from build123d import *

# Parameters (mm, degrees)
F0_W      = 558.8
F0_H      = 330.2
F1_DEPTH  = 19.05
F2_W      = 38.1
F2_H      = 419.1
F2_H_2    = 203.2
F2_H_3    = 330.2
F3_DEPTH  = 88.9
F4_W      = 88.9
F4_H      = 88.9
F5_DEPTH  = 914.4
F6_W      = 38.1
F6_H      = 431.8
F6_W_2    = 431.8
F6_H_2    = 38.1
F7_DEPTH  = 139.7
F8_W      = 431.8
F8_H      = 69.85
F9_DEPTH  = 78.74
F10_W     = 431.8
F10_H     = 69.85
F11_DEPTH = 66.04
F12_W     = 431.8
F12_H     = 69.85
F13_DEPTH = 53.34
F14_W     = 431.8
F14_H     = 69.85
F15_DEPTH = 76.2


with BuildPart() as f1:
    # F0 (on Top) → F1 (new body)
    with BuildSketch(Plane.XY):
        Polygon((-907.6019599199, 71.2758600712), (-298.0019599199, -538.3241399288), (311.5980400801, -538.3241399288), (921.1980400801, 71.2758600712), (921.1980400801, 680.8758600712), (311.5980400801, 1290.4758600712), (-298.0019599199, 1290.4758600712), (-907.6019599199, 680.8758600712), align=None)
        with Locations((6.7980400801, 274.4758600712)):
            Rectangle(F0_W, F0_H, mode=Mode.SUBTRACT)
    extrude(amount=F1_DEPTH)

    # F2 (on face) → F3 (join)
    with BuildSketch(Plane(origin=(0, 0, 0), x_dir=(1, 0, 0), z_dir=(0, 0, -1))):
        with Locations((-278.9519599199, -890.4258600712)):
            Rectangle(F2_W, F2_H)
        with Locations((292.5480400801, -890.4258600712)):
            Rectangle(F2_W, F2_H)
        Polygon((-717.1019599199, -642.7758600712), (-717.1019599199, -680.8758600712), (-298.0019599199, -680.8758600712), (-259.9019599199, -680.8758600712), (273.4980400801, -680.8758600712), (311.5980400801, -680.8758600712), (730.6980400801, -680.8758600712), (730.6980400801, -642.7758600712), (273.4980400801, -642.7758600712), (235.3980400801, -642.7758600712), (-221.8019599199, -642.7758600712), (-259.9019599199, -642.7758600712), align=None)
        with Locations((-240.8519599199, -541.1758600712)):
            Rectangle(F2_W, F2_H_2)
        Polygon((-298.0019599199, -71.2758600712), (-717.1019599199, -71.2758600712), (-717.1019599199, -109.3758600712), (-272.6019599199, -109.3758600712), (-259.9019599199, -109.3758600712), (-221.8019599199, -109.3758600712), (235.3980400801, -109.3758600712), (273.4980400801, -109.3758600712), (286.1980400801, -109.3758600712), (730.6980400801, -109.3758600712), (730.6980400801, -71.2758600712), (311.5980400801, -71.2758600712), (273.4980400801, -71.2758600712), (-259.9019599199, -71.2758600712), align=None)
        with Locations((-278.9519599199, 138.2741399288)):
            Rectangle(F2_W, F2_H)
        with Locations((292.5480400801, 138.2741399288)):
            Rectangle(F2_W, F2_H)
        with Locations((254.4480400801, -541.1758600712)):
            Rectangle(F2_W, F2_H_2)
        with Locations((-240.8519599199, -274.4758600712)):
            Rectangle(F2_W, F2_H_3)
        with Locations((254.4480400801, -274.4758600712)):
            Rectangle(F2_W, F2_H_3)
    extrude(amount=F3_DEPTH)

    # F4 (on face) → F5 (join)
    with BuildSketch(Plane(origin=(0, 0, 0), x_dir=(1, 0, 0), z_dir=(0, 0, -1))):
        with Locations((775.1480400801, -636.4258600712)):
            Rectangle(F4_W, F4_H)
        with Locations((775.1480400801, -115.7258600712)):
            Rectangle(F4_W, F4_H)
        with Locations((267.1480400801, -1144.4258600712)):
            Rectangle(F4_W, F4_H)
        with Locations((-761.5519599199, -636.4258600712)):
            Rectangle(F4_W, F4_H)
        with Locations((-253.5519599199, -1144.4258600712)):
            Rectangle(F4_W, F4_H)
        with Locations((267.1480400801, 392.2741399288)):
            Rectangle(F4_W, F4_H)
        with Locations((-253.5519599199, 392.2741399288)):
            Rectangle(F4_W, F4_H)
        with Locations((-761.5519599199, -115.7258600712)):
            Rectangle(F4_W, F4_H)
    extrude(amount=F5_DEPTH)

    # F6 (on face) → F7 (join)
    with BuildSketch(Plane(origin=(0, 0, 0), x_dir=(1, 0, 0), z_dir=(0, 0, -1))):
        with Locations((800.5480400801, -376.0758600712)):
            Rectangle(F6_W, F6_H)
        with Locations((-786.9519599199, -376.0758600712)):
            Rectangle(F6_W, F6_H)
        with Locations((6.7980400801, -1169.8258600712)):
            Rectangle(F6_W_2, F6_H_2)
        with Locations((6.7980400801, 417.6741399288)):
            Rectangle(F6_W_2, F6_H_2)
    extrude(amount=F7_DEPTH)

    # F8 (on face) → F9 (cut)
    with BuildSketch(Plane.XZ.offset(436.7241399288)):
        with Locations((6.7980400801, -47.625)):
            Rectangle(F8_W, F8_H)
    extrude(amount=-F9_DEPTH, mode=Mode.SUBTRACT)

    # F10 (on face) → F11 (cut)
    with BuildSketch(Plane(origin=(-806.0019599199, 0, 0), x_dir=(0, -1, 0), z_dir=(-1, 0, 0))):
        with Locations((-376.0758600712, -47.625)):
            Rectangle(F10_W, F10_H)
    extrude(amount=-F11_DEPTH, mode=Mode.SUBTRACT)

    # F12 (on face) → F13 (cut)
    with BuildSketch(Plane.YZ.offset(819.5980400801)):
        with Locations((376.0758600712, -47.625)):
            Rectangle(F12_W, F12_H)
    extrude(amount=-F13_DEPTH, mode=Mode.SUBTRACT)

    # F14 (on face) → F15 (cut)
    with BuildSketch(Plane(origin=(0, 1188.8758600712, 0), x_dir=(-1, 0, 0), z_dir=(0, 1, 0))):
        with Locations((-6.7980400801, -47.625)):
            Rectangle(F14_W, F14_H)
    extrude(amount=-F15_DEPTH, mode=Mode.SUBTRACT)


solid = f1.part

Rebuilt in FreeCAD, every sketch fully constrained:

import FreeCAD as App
import Part
import Sketcher

V = App.Vector
Q = App.Units.Quantity

doc = App.newDocument("Part")
body = doc.addObject("PartDesign::Body", "Body")

# Sketch on XY plane
sketch1 = body.newObject("Sketcher::SketchObject", "Sketch")
sketch1.AttachmentSupport = (doc.getObject("XY_Plane"), [""])
sketch1.MapMode = "FlatFace"
sketch1.addGeometry(Part.LineSegment(V(-908, 71, 0), V(-298, -538, 0)), False)
sketch1.addGeometry(Part.LineSegment(V(-298, -538, 0), V(312, -538, 0)), False)
sketch1.addGeometry(Part.LineSegment(V(312, -538, 0), V(921, 71, 0)), False)
sketch1.addGeometry(Part.LineSegment(V(921, 71, 0), V(921, 681, 0)), False)
sketch1.addGeometry(Part.LineSegment(V(921, 681, 0), V(312, 1290, 0)), False)
sketch1.addGeometry(Part.LineSegment(V(312, 1290, 0), V(-298, 1290, 0)), False)
sketch1.addGeometry(Part.LineSegment(V(-298, 1290, 0), V(-908, 681, 0)), False)
sketch1.addGeometry(Part.LineSegment(V(-908, 681, 0), V(-908, 71, 0)), False)
sketch1.addGeometry(Part.LineSegment(V(286, 109, 0), V(-273, 109, 0)), False)
sketch1.addGeometry(Part.LineSegment(V(-273, 109, 0), V(-273, 440, 0)), False)
sketch1.addGeometry(Part.LineSegment(V(-273, 440, 0), V(286, 440, 0)), False)
sketch1.addGeometry(Part.LineSegment(V(286, 440, 0), V(286, 109, 0)), False)
sketch1.addConstraint(Sketcher.Constraint("Coincident", 0, 2, 1, 1))
sketch1.addConstraint(Sketcher.Constraint("Coincident", 1, 2, 2, 1))
sketch1.addConstraint(Sketcher.Constraint("Coincident", 2, 2, 3, 1))
sketch1.addConstraint(Sketcher.Constraint("Coincident", 3, 2, 4, 1))
sketch1.addConstraint(Sketcher.Constraint("Coincident", 4, 2, 5, 1))
sketch1.addConstraint(Sketcher.Constraint("Coincident", 5, 2, 6, 1))
sketch1.addConstraint(Sketcher.Constraint("Coincident", 6, 2, 7, 1))
sketch1.addConstraint(Sketcher.Constraint("Coincident", 7, 2, 0, 1))
sketch1.addConstraint(Sketcher.Constraint("Coincident", 8, 2, 9, 1))
sketch1.addConstraint(Sketcher.Constraint("Coincident", 9, 2, 10, 1))
sketch1.addConstraint(Sketcher.Constraint("Coincident", 10, 2, 11, 1))
sketch1.addConstraint(Sketcher.Constraint("Coincident", 11, 2, 8, 1))
sketch1.addConstraint(Sketcher.Constraint("Horizontal", 1))
sketch1.addConstraint(Sketcher.Constraint("Vertical", 3))
sketch1.addConstraint(Sketcher.Constraint("Horizontal", 5))
sketch1.addConstraint(Sketcher.Constraint("Vertical", 7))
sketch1.addConstraint(Sketcher.Constraint("Horizontal", 8))
sketch1.addConstraint(Sketcher.Constraint("Vertical", 9))
sketch1.addConstraint(Sketcher.Constraint("Horizontal", 10))
sketch1.addConstraint(Sketcher.Constraint("Vertical", 11))
sketch1.addConstraint(Sketcher.Constraint("Perpendicular", 0, 2))
sketch1.addConstraint(Sketcher.Constraint("Perpendicular", 2, 4))
sketch1.addConstraint(Sketcher.Constraint("Perpendicular", 4, 6))
sketch1.addConstraint(Sketcher.Constraint("Horizontal", 3, 2, 6, 2))
sketch1.addConstraint(Sketcher.Constraint("Horizontal", 2, 2, 7, 2))
sketch1.addConstraint(Sketcher.Constraint("Vertical", 1, 2, 4, 2))
sketch1.addConstraint(Sketcher.Constraint("Vertical", 0, 2, 5, 2))
sketch1.addConstraint(Sketcher.Constraint("Equal", 5, 3))
sketch1.addConstraint(Sketcher.Constraint("DistanceX", 1, 1, 1, 2, Q("24 in")))
sketch1.addConstraint(Sketcher.Constraint("DistanceX", 8, 2, 8, 1, Q("22 in")))
sketch1.addConstraint(Sketcher.Constraint("DistanceY", 9, 1, 9, 2, Q("13 in")))
sketch1.addConstraint(Sketcher.Constraint("DistanceX", 1, 2, 2, 2, Q("24 in")))
sketch1.addConstraint(Sketcher.Constraint("DistanceX", 7, 2, 8, 2, Q("25 in")))
sketch1.addConstraint(Sketcher.Constraint("DistanceY", 7, 2, 8, 2, Q("1.5 in")))
sketch1.addConstraint(Sketcher.Constraint("DistanceX", 0, 2, -1, 1, Q("298.00196 mm")))
sketch1.addConstraint(Sketcher.Constraint("DistanceY", 0, 2, -1, 1, Q("538.32414 mm")))
pad1 = body.newObject("PartDesign::Pad", "Pad")
pad1.Profile = sketch1
pad1.Length = Q("0.75 in")

# Sketch on XY plane
sketch2 = body.newObject("Sketcher::SketchObject", "Sketch001")
sketch2.AttachmentSupport = (doc.getObject("XY_Plane"), [""])
sketch2.MapMode = "FlatFace"
sketch2.addGeometry(Part.LineSegment(V(-298, 681, 0), V(-298, 1100, 0)), False)
sketch2.addGeometry(Part.LineSegment(V(-298, 1100, 0), V(-260, 1100, 0)), False)
sketch2.addGeometry(Part.LineSegment(V(-260, 1100, 0), V(-260, 681, 0)), False)
sketch2.addGeometry(Part.LineSegment(V(-260, 681, 0), V(273, 681, 0)), False)
sketch2.addGeometry(Part.LineSegment(V(273, 681, 0), V(273, 1100, 0)), False)
sketch2.addGeometry(Part.LineSegment(V(273, 1100, 0), V(312, 1100, 0)), False)
sketch2.addGeometry(Part.LineSegment(V(312, 1100, 0), V(312, 681, 0)), False)
sketch2.addGeometry(Part.LineSegment(V(312, 681, 0), V(731, 681, 0)), False)
sketch2.addGeometry(Part.LineSegment(V(731, 681, 0), V(731, 643, 0)), False)
sketch2.addGeometry(Part.LineSegment(V(731, 643, 0), V(273, 643, 0)), False)
sketch2.addGeometry(Part.LineSegment(V(273, 643, 0), V(273, 109, 0)), False)
sketch2.addGeometry(Part.LineSegment(V(273, 109, 0), V(731, 109, 0)), False)
sketch2.addGeometry(Part.LineSegment(V(731, 109, 0), V(731, 71, 0)), False)
sketch2.addGeometry(Part.LineSegment(V(731, 71, 0), V(312, 71, 0)), False)
sketch2.addGeometry(Part.LineSegment(V(312, 71, 0), V(312, -348, 0)), False)
sketch2.addGeometry(Part.LineSegment(V(312, -348, 0), V(273, -348, 0)), False)
sketch2.addGeometry(Part.LineSegment(V(273, -348, 0), V(273, 71, 0)), False)
sketch2.addGeometry(Part.LineSegment(V(273, 71, 0), V(-260, 71, 0)), False)
sketch2.addGeometry(Part.LineSegment(V(-260, 71, 0), V(-260, -348, 0)), False)
sketch2.addGeometry(Part.LineSegment(V(-260, -348, 0), V(-298, -348, 0)), False)
sketch2.addGeometry(Part.LineSegment(V(-298, -348, 0), V(-298, 71, 0)), False)
sketch2.addGeometry(Part.LineSegment(V(-298, 71, 0), V(-717, 71, 0)), False)
sketch2.addGeometry(Part.LineSegment(V(-717, 71, 0), V(-717, 109, 0)), False)
sketch2.addGeometry(Part.LineSegment(V(-717, 109, 0), V(-260, 109, 0)), False)
sketch2.addGeometry(Part.LineSegment(V(-260, 109, 0), V(-260, 643, 0)), False)
sketch2.addGeometry(Part.LineSegment(V(-260, 643, 0), V(-717, 643, 0)), False)
sketch2.addGeometry(Part.LineSegment(V(-717, 643, 0), V(-717, 681, 0)), False)
sketch2.addGeometry(Part.LineSegment(V(-717, 681, 0), V(-298, 681, 0)), False)
sketch2.addGeometry(Part.LineSegment(V(235, 643, 0), V(-222, 643, 0)), False)
sketch2.addGeometry(Part.LineSegment(V(-222, 643, 0), V(-222, 109, 0)), False)
sketch2.addGeometry(Part.LineSegment(V(-222, 109, 0), V(235, 109, 0)), False)
sketch2.addGeometry(Part.LineSegment(V(235, 109, 0), V(235, 643, 0)), False)
sketch2.addConstraint(Sketcher.Constraint("Coincident", 0, 2, 1, 1))
sketch2.addConstraint(Sketcher.Constraint("Coincident", 1, 2, 2, 1))
sketch2.addConstraint(Sketcher.Constraint("Coincident", 2, 2, 3, 1))
sketch2.addConstraint(Sketcher.Constraint("Coincident", 3, 2, 4, 1))
sketch2.addConstraint(Sketcher.Constraint("Coincident", 4, 2, 5, 1))
sketch2.addConstraint(Sketcher.Constraint("Coincident", 5, 2, 6, 1))
sketch2.addConstraint(Sketcher.Constraint("Coincident", 6, 2, 7, 1))
sketch2.addConstraint(Sketcher.Constraint("Coincident", 7, 2, 8, 1))
sketch2.addConstraint(Sketcher.Constraint("Coincident", 8, 2, 9, 1))
sketch2.addConstraint(Sketcher.Constraint("Coincident", 9, 2, 10, 1))
sketch2.addConstraint(Sketcher.Constraint("Coincident", 10, 2, 11, 1))
sketch2.addConstraint(Sketcher.Constraint("Coincident", 11, 2, 12, 1))
sketch2.addConstraint(Sketcher.Constraint("Coincident", 12, 2, 13, 1))
sketch2.addConstraint(Sketcher.Constraint("Coincident", 13, 2, 14, 1))
sketch2.addConstraint(Sketcher.Constraint("Coincident", 14, 2, 15, 1))
sketch2.addConstraint(Sketcher.Constraint("Coincident", 15, 2, 16, 1))
sketch2.addConstraint(Sketcher.Constraint("Coincident", 16, 2, 17, 1))
sketch2.addConstraint(Sketcher.Constraint("Coincident", 17, 2, 18, 1))
sketch2.addConstraint(Sketcher.Constraint("Coincident", 18, 2, 19, 1))
sketch2.addConstraint(Sketcher.Constraint("Coincident", 19, 2, 20, 1))
sketch2.addConstraint(Sketcher.Constraint("Coincident", 20, 2, 21, 1))
sketch2.addConstraint(Sketcher.Constraint("Coincident", 21, 2, 22, 1))
sketch2.addConstraint(Sketcher.Constraint("Coincident", 22, 2, 23, 1))
sketch2.addConstraint(Sketcher.Constraint("Coincident", 23, 2, 24, 1))
sketch2.addConstraint(Sketcher.Constraint("Coincident", 24, 2, 25, 1))
sketch2.addConstraint(Sketcher.Constraint("Coincident", 25, 2, 26, 1))
sketch2.addConstraint(Sketcher.Constraint("Coincident", 26, 2, 27, 1))
sketch2.addConstraint(Sketcher.Constraint("Coincident", 27, 2, 0, 1))
sketch2.addConstraint(Sketcher.Constraint("Coincident", 28, 2, 29, 1))
sketch2.addConstraint(Sketcher.Constraint("Coincident", 29, 2, 30, 1))
sketch2.addConstraint(Sketcher.Constraint("Coincident", 30, 2, 31, 1))
sketch2.addConstraint(Sketcher.Constraint("Coincident", 31, 2, 28, 1))
sketch2.addConstraint(Sketcher.Constraint("Vertical", 0))
sketch2.addConstraint(Sketcher.Constraint("Horizontal", 1))
sketch2.addConstraint(Sketcher.Constraint("Vertical", 2))
sketch2.addConstraint(Sketcher.Constraint("Horizontal", 3))
sketch2.addConstraint(Sketcher.Constraint("Vertical", 4))
sketch2.addConstraint(Sketcher.Constraint("Horizontal", 5))
sketch2.addConstraint(Sketcher.Constraint("Vertical", 6))
sketch2.addConstraint(Sketcher.Constraint("Horizontal", 7))
sketch2.addConstraint(Sketcher.Constraint("Vertical", 8))
sketch2.addConstraint(Sketcher.Constraint("Horizontal", 9))
sketch2.addConstraint(Sketcher.Constraint("Vertical", 10))
sketch2.addConstraint(Sketcher.Constraint("Horizontal", 11))
sketch2.addConstraint(Sketcher.Constraint("Vertical", 12))
sketch2.addConstraint(Sketcher.Constraint("Horizontal", 13))
sketch2.addConstraint(Sketcher.Constraint("Vertical", 14))
sketch2.addConstraint(Sketcher.Constraint("Horizontal", 15))
sketch2.addConstraint(Sketcher.Constraint("Vertical", 16))
sketch2.addConstraint(Sketcher.Constraint("Horizontal", 17))
sketch2.addConstraint(Sketcher.Constraint("Vertical", 18))
sketch2.addConstraint(Sketcher.Constraint("Horizontal", 19))
sketch2.addConstraint(Sketcher.Constraint("Vertical", 20))
sketch2.addConstraint(Sketcher.Constraint("Horizontal", 21))
sketch2.addConstraint(Sketcher.Constraint("Vertical", 22))
sketch2.addConstraint(Sketcher.Constraint("Horizontal", 23))
sketch2.addConstraint(Sketcher.Constraint("Vertical", 24))
sketch2.addConstraint(Sketcher.Constraint("Horizontal", 25))
sketch2.addConstraint(Sketcher.Constraint("Vertical", 26))
sketch2.addConstraint(Sketcher.Constraint("Horizontal", 27))
sketch2.addConstraint(Sketcher.Constraint("Horizontal", 28))
sketch2.addConstraint(Sketcher.Constraint("Vertical", 29))
sketch2.addConstraint(Sketcher.Constraint("Horizontal", 30))
sketch2.addConstraint(Sketcher.Constraint("Vertical", 31))
sketch2.addConstraint(Sketcher.Constraint("Horizontal", 1, 2, 4, 2))
sketch2.addConstraint(Sketcher.Constraint("Horizontal", 3, 2, 6, 2))
sketch2.addConstraint(Sketcher.Constraint("Horizontal", 13, 2, 16, 2))
sketch2.addConstraint(Sketcher.Constraint("Horizontal", 15, 2, 18, 2))
sketch2.addConstraint(Sketcher.Constraint("Horizontal", 17, 2, 20, 2))
sketch2.addConstraint(Sketcher.Constraint("Horizontal", 11, 2, 22, 2))
sketch2.addConstraint(Sketcher.Constraint("Horizontal", 9, 2, 24, 2))
sketch2.addConstraint(Sketcher.Constraint("Horizontal", 7, 2, 26, 2))
sketch2.addConstraint(Sketcher.Constraint("Horizontal", 25, 2, 28, 2))
sketch2.addConstraint(Sketcher.Constraint("Horizontal", 23, 2, 29, 2))
sketch2.addConstraint(Sketcher.Constraint("Vertical", 4, 2, 9, 2))
sketch2.addConstraint(Sketcher.Constraint("Vertical", 8, 2, 11, 2))
sketch2.addConstraint(Sketcher.Constraint("Vertical", 6, 2, 13, 2))
sketch2.addConstraint(Sketcher.Constraint("Vertical", 10, 2, 15, 2))
sketch2.addConstraint(Sketcher.Constraint("Vertical", 2, 2, 17, 2))
sketch2.addConstraint(Sketcher.Constraint("Vertical", 0, 2, 19, 2))
sketch2.addConstraint(Sketcher.Constraint("Vertical", 18, 2, 23, 2))
sketch2.addConstraint(Sketcher.Constraint("Vertical", 22, 2, 25, 2))
sketch2.addConstraint(Sketcher.Constraint("Equal", 1, 5))
sketch2.addConstraint(Sketcher.Constraint("Equal", 13, 21))
sketch2.addConstraint(Sketcher.Constraint("Equal", 25, 28))
sketch2.addConstraint(Sketcher.Constraint("Equal", 27, 0))
sketch2.addConstraint(Sketcher.Constraint("Equal", 19, 8))
sketch2.addConstraint(Sketcher.Constraint("Equal", 17, 10))
sketch2.addConstraint(Sketcher.Constraint("Equal", 8, 12))
sketch2.addConstraint(Sketcher.Constraint("Equal", 6, 14))
sketch2.addConstraint(Sketcher.Constraint("DistanceX", 3, 1, 3, 2, Q("21 in")))
sketch2.addConstraint(Sketcher.Constraint("DistanceX", 9, 2, 9, 1, Q("18 in")))
sketch2.addConstraint(Sketcher.Constraint("DistanceX", 1, 1, 1, 2, Q("1.5 in")))
sketch2.addConstraint(Sketcher.Constraint("DistanceX", 27, 2, 28, 2, Q("3 in")))
sketch2.addConstraint(Sketcher.Constraint("DistanceX", 0, 2, -1, 1, Q("298.00196 mm")))
sketch2.addConstraint(Sketcher.Constraint("DistanceY", -1, 1, 0, 2, Q("1099.97586 mm")))
pad2 = body.newObject("PartDesign::Pad", "Pad001")
pad2.Profile = sketch2
pad2.Length = Q("3.5 in")
pad2.Reversed = True

# Sketch on XY plane
sketch3 = body.newObject("Sketcher::SketchObject", "Sketch002")
sketch3.AttachmentSupport = (doc.getObject("XY_Plane"), [""])
sketch3.MapMode = "FlatFace"
sketch3.addGeometry(Part.LineSegment(V(731, 592, 0), V(731, 681, 0)), False)
sketch3.addGeometry(Part.LineSegment(V(731, 681, 0), V(820, 681, 0)), False)
sketch3.addGeometry(Part.LineSegment(V(820, 681, 0), V(820, 592, 0)), False)
sketch3.addGeometry(Part.LineSegment(V(820, 592, 0), V(731, 592, 0)), False)
sketch3.addGeometry(Part.LineSegment(V(731, 71, 0), V(731, 160, 0)), False)
sketch3.addGeometry(Part.LineSegment(V(731, 160, 0), V(820, 160, 0)), False)
sketch3.addGeometry(Part.LineSegment(V(820, 160, 0), V(820, 71, 0)), False)
sketch3.addGeometry(Part.LineSegment(V(820, 71, 0), V(731, 71, 0)), False)
sketch3.addGeometry(Part.LineSegment(V(223, 1100, 0), V(223, 1189, 0)), False)
sketch3.addGeometry(Part.LineSegment(V(223, 1189, 0), V(312, 1189, 0)), False)
sketch3.addGeometry(Part.LineSegment(V(312, 1189, 0), V(312, 1100, 0)), False)
sketch3.addGeometry(Part.LineSegment(V(312, 1100, 0), V(223, 1100, 0)), False)
sketch3.addGeometry(Part.LineSegment(V(-806, 592, 0), V(-806, 681, 0)), False)
sketch3.addGeometry(Part.LineSegment(V(-806, 681, 0), V(-717, 681, 0)), False)
sketch3.addGeometry(Part.LineSegment(V(-717, 681, 0), V(-717, 592, 0)), False)
sketch3.addGeometry(Part.LineSegment(V(-717, 592, 0), V(-806, 592, 0)), False)
sketch3.addGeometry(Part.LineSegment(V(-298, 1100, 0), V(-298, 1189, 0)), False)
sketch3.addGeometry(Part.LineSegment(V(-298, 1189, 0), V(-209, 1189, 0)), False)
sketch3.addGeometry(Part.LineSegment(V(-209, 1189, 0), V(-209, 1100, 0)), False)
sketch3.addGeometry(Part.LineSegment(V(-209, 1100, 0), V(-298, 1100, 0)), False)
sketch3.addGeometry(Part.LineSegment(V(223, -437, 0), V(223, -348, 0)), False)
sketch3.addGeometry(Part.LineSegment(V(223, -348, 0), V(312, -348, 0)), False)
sketch3.addGeometry(Part.LineSegment(V(312, -348, 0), V(312, -437, 0)), False)
sketch3.addGeometry(Part.LineSegment(V(312, -437, 0), V(223, -437, 0)), False)
sketch3.addGeometry(Part.LineSegment(V(-298, -437, 0), V(-298, -348, 0)), False)
sketch3.addGeometry(Part.LineSegment(V(-298, -348, 0), V(-209, -348, 0)), False)
sketch3.addGeometry(Part.LineSegment(V(-209, -348, 0), V(-209, -437, 0)), False)
sketch3.addGeometry(Part.LineSegment(V(-209, -437, 0), V(-298, -437, 0)), False)
sketch3.addGeometry(Part.LineSegment(V(-806, 71, 0), V(-806, 160, 0)), False)
sketch3.addGeometry(Part.LineSegment(V(-806, 160, 0), V(-717, 160, 0)), False)
sketch3.addGeometry(Part.LineSegment(V(-717, 160, 0), V(-717, 71, 0)), False)
sketch3.addGeometry(Part.LineSegment(V(-717, 71, 0), V(-806, 71, 0)), False)
sketch3.addConstraint(Sketcher.Constraint("Coincident", 0, 2, 1, 1))
sketch3.addConstraint(Sketcher.Constraint("Coincident", 1, 2, 2, 1))
sketch3.addConstraint(Sketcher.Constraint("Coincident", 2, 2, 3, 1))
sketch3.addConstraint(Sketcher.Constraint("Coincident", 3, 2, 0, 1))
sketch3.addConstraint(Sketcher.Constraint("Coincident", 4, 2, 5, 1))
sketch3.addConstraint(Sketcher.Constraint("Coincident", 5, 2, 6, 1))
sketch3.addConstraint(Sketcher.Constraint("Coincident", 6, 2, 7, 1))
sketch3.addConstraint(Sketcher.Constraint("Coincident", 7, 2, 4, 1))
sketch3.addConstraint(Sketcher.Constraint("Coincident", 8, 2, 9, 1))
sketch3.addConstraint(Sketcher.Constraint("Coincident", 9, 2, 10, 1))
sketch3.addConstraint(Sketcher.Constraint("Coincident", 10, 2, 11, 1))
sketch3.addConstraint(Sketcher.Constraint("Coincident", 11, 2, 8, 1))
sketch3.addConstraint(Sketcher.Constraint("Coincident", 12, 2, 13, 1))
sketch3.addConstraint(Sketcher.Constraint("Coincident", 13, 2, 14, 1))
sketch3.addConstraint(Sketcher.Constraint("Coincident", 14, 2, 15, 1))
sketch3.addConstraint(Sketcher.Constraint("Coincident", 15, 2, 12, 1))
sketch3.addConstraint(Sketcher.Constraint("Coincident", 16, 2, 17, 1))
sketch3.addConstraint(Sketcher.Constraint("Coincident", 17, 2, 18, 1))
sketch3.addConstraint(Sketcher.Constraint("Coincident", 18, 2, 19, 1))
sketch3.addConstraint(Sketcher.Constraint("Coincident", 19, 2, 16, 1))
sketch3.addConstraint(Sketcher.Constraint("Coincident", 20, 2, 21, 1))
sketch3.addConstraint(Sketcher.Constraint("Coincident", 21, 2, 22, 1))
sketch3.addConstraint(Sketcher.Constraint("Coincident", 22, 2, 23, 1))
sketch3.addConstraint(Sketcher.Constraint("Coincident", 23, 2, 20, 1))
sketch3.addConstraint(Sketcher.Constraint("Coincident", 24, 2, 25, 1))
sketch3.addConstraint(Sketcher.Constraint("Coincident", 25, 2, 26, 1))
sketch3.addConstraint(Sketcher.Constraint("Coincident", 26, 2, 27, 1))
sketch3.addConstraint(Sketcher.Constraint("Coincident", 27, 2, 24, 1))
sketch3.addConstraint(Sketcher.Constraint("Coincident", 28, 2, 29, 1))
sketch3.addConstraint(Sketcher.Constraint("Coincident", 29, 2, 30, 1))
sketch3.addConstraint(Sketcher.Constraint("Coincident", 30, 2, 31, 1))
sketch3.addConstraint(Sketcher.Constraint("Coincident", 31, 2, 28, 1))
sketch3.addConstraint(Sketcher.Constraint("Vertical", 0))
sketch3.addConstraint(Sketcher.Constraint("Horizontal", 1))
sketch3.addConstraint(Sketcher.Constraint("Vertical", 2))
sketch3.addConstraint(Sketcher.Constraint("Horizontal", 3))
sketch3.addConstraint(Sketcher.Constraint("Vertical", 4))
sketch3.addConstraint(Sketcher.Constraint("Horizontal", 5))
sketch3.addConstraint(Sketcher.Constraint("Vertical", 6))
sketch3.addConstraint(Sketcher.Constraint("Horizontal", 7))
sketch3.addConstraint(Sketcher.Constraint("Vertical", 8))
sketch3.addConstraint(Sketcher.Constraint("Horizontal", 9))
sketch3.addConstraint(Sketcher.Constraint("Vertical", 10))
sketch3.addConstraint(Sketcher.Constraint("Horizontal", 11))
sketch3.addConstraint(Sketcher.Constraint("Vertical", 12))
sketch3.addConstraint(Sketcher.Constraint("Horizontal", 13))
sketch3.addConstraint(Sketcher.Constraint("Vertical", 14))
sketch3.addConstraint(Sketcher.Constraint("Horizontal", 15))
sketch3.addConstraint(Sketcher.Constraint("Vertical", 16))
sketch3.addConstraint(Sketcher.Constraint("Horizontal", 17))
sketch3.addConstraint(Sketcher.Constraint("Vertical", 18))
sketch3.addConstraint(Sketcher.Constraint("Horizontal", 19))
sketch3.addConstraint(Sketcher.Constraint("Vertical", 20))
sketch3.addConstraint(Sketcher.Constraint("Horizontal", 21))
sketch3.addConstraint(Sketcher.Constraint("Vertical", 22))
sketch3.addConstraint(Sketcher.Constraint("Horizontal", 23))
sketch3.addConstraint(Sketcher.Constraint("Vertical", 24))
sketch3.addConstraint(Sketcher.Constraint("Horizontal", 25))
sketch3.addConstraint(Sketcher.Constraint("Vertical", 26))
sketch3.addConstraint(Sketcher.Constraint("Horizontal", 27))
sketch3.addConstraint(Sketcher.Constraint("Vertical", 28))
sketch3.addConstraint(Sketcher.Constraint("Horizontal", 29))
sketch3.addConstraint(Sketcher.Constraint("Vertical", 30))
sketch3.addConstraint(Sketcher.Constraint("Horizontal", 31))
sketch3.addConstraint(Sketcher.Constraint("Horizontal", 1, 2, 12, 2))
sketch3.addConstraint(Sketcher.Constraint("Horizontal", 3, 2, 14, 2))
sketch3.addConstraint(Sketcher.Constraint("Horizontal", 9, 2, 16, 2))
sketch3.addConstraint(Sketcher.Constraint("Horizontal", 11, 2, 18, 2))
sketch3.addConstraint(Sketcher.Constraint("Horizontal", 21, 2, 24, 2))
sketch3.addConstraint(Sketcher.Constraint("Horizontal", 23, 2, 26, 2))
sketch3.addConstraint(Sketcher.Constraint("Horizontal", 5, 2, 28, 2))
sketch3.addConstraint(Sketcher.Constraint("Horizontal", 7, 2, 30, 2))
sketch3.addConstraint(Sketcher.Constraint("Vertical", 3, 2, 4, 2))
sketch3.addConstraint(Sketcher.Constraint("Vertical", 2, 2, 5, 2))
sketch3.addConstraint(Sketcher.Constraint("Vertical", 11, 2, 20, 2))
sketch3.addConstraint(Sketcher.Constraint("Vertical", 10, 2, 21, 2))
sketch3.addConstraint(Sketcher.Constraint("Vertical", 19, 2, 24, 2))
sketch3.addConstraint(Sketcher.Constraint("Vertical", 18, 2, 25, 2))
sketch3.addConstraint(Sketcher.Constraint("Vertical", 15, 2, 28, 2))
sketch3.addConstraint(Sketcher.Constraint("Vertical", 14, 2, 29, 2))
sketch3.addConstraint(Sketcher.Constraint("Equal", 7, 9))
sketch3.addConstraint(Sketcher.Constraint("Equal", 11, 13))
sketch3.addConstraint(Sketcher.Constraint("Equal", 15, 17))
sketch3.addConstraint(Sketcher.Constraint("Equal", 31, 0))
sketch3.addConstraint(Sketcher.Constraint("Equal", 2, 4))
sketch3.addConstraint(Sketcher.Constraint("Equal", 6, 8))
sketch3.addConstraint(Sketcher.Constraint("Equal", 18, 20))
sketch3.addConstraint(Sketcher.Constraint("DistanceX", 1, 1, 1, 2, Q("3.5 in")))
sketch3.addConstraint(Sketcher.Constraint("DistanceY", 4, 2, 3, 2, Q("17 in")))
sketch3.addConstraint(Sketcher.Constraint("DistanceX", 8, 2, 0, 2, Q("20 in")))
sketch3.addConstraint(Sketcher.Constraint("DistanceY", 0, 2, 8, 2, Q("20 in")))
sketch3.addConstraint(Sketcher.Constraint("DistanceX", 12, 2, 10, 2, Q("44 in")))
sketch3.addConstraint(Sketcher.Constraint("DistanceX", 16, 2, 9, 2, Q("24 in")))
sketch3.addConstraint(Sketcher.Constraint("DistanceY", 20, 2, 4, 2, Q("20 in")))
sketch3.addConstraint(Sketcher.Constraint("DistanceX", -1, 1, 0, 2, Q("730.69804 mm")))
sketch3.addConstraint(Sketcher.Constraint("DistanceY", -1, 1, 0, 2, Q("680.87586 mm")))
pad3 = body.newObject("PartDesign::Pad", "Pad002")
pad3.Profile = sketch3
pad3.Length = Q("36 in")
pad3.Reversed = True

# Sketch on XY plane
sketch4 = body.newObject("Sketcher::SketchObject", "Sketch003")
sketch4.AttachmentSupport = (doc.getObject("XY_Plane"), [""])
sketch4.MapMode = "FlatFace"
sketch4.addGeometry(Part.LineSegment(V(781, 160, 0), V(781, 592, 0)), False)
sketch4.addGeometry(Part.LineSegment(V(781, 592, 0), V(820, 592, 0)), False)
sketch4.addGeometry(Part.LineSegment(V(820, 592, 0), V(820, 160, 0)), False)
sketch4.addGeometry(Part.LineSegment(V(820, 160, 0), V(781, 160, 0)), False)
sketch4.addGeometry(Part.LineSegment(V(-806, 160, 0), V(-806, 592, 0)), False)
sketch4.addGeometry(Part.LineSegment(V(-806, 592, 0), V(-768, 592, 0)), False)
sketch4.addGeometry(Part.LineSegment(V(-768, 592, 0), V(-768, 160, 0)), False)
sketch4.addGeometry(Part.LineSegment(V(-768, 160, 0), V(-806, 160, 0)), False)
sketch4.addGeometry(Part.LineSegment(V(-209, 1151, 0), V(-209, 1189, 0)), False)
sketch4.addGeometry(Part.LineSegment(V(-209, 1189, 0), V(223, 1189, 0)), False)
sketch4.addGeometry(Part.LineSegment(V(223, 1189, 0), V(223, 1151, 0)), False)
sketch4.addGeometry(Part.LineSegment(V(223, 1151, 0), V(-209, 1151, 0)), False)
sketch4.addGeometry(Part.LineSegment(V(-209, -437, 0), V(-209, -399, 0)), False)
sketch4.addGeometry(Part.LineSegment(V(-209, -399, 0), V(223, -399, 0)), False)
sketch4.addGeometry(Part.LineSegment(V(223, -399, 0), V(223, -437, 0)), False)
sketch4.addGeometry(Part.LineSegment(V(223, -437, 0), V(-209, -437, 0)), False)
sketch4.addConstraint(Sketcher.Constraint("Coincident", 0, 2, 1, 1))
sketch4.addConstraint(Sketcher.Constraint("Coincident", 1, 2, 2, 1))
sketch4.addConstraint(Sketcher.Constraint("Coincident", 2, 2, 3, 1))
sketch4.addConstraint(Sketcher.Constraint("Coincident", 3, 2, 0, 1))
sketch4.addConstraint(Sketcher.Constraint("Coincident", 4, 2, 5, 1))
sketch4.addConstraint(Sketcher.Constraint("Coincident", 5, 2, 6, 1))
sketch4.addConstraint(Sketcher.Constraint("Coincident", 6, 2, 7, 1))
sketch4.addConstraint(Sketcher.Constraint("Coincident", 7, 2, 4, 1))
sketch4.addConstraint(Sketcher.Constraint("Coincident", 8, 2, 9, 1))
sketch4.addConstraint(Sketcher.Constraint("Coincident", 9, 2, 10, 1))
sketch4.addConstraint(Sketcher.Constraint("Coincident", 10, 2, 11, 1))
sketch4.addConstraint(Sketcher.Constraint("Coincident", 11, 2, 8, 1))
sketch4.addConstraint(Sketcher.Constraint("Coincident", 12, 2, 13, 1))
sketch4.addConstraint(Sketcher.Constraint("Coincident", 13, 2, 14, 1))
sketch4.addConstraint(Sketcher.Constraint("Coincident", 14, 2, 15, 1))
sketch4.addConstraint(Sketcher.Constraint("Coincident", 15, 2, 12, 1))
sketch4.addConstraint(Sketcher.Constraint("Vertical", 0))
sketch4.addConstraint(Sketcher.Constraint("Horizontal", 1))
sketch4.addConstraint(Sketcher.Constraint("Vertical", 2))
sketch4.addConstraint(Sketcher.Constraint("Horizontal", 3))
sketch4.addConstraint(Sketcher.Constraint("Vertical", 4))
sketch4.addConstraint(Sketcher.Constraint("Horizontal", 5))
sketch4.addConstraint(Sketcher.Constraint("Vertical", 6))
sketch4.addConstraint(Sketcher.Constraint("Horizontal", 7))
sketch4.addConstraint(Sketcher.Constraint("Vertical", 8))
sketch4.addConstraint(Sketcher.Constraint("Horizontal", 9))
sketch4.addConstraint(Sketcher.Constraint("Vertical", 10))
sketch4.addConstraint(Sketcher.Constraint("Horizontal", 11))
sketch4.addConstraint(Sketcher.Constraint("Vertical", 12))
sketch4.addConstraint(Sketcher.Constraint("Horizontal", 13))
sketch4.addConstraint(Sketcher.Constraint("Vertical", 14))
sketch4.addConstraint(Sketcher.Constraint("Horizontal", 15))
sketch4.addConstraint(Sketcher.Constraint("Horizontal", 1, 2, 4, 2))
sketch4.addConstraint(Sketcher.Constraint("Horizontal", 3, 2, 6, 2))
sketch4.addConstraint(Sketcher.Constraint("Vertical", 11, 2, 12, 2))
sketch4.addConstraint(Sketcher.Constraint("Vertical", 10, 2, 13, 2))
sketch4.addConstraint(Sketcher.Constraint("Equal", 3, 5))
sketch4.addConstraint(Sketcher.Constraint("Equal", 15, 0))
sketch4.addConstraint(Sketcher.Constraint("Equal", 7, 8))
sketch4.addConstraint(Sketcher.Constraint("Equal", 10, 12))
sketch4.addConstraint(Sketcher.Constraint("DistanceX", 9, 1, 9, 2, Q("17 in")))
sketch4.addConstraint(Sketcher.Constraint("DistanceX", 1, 1, 1, 2, Q("1.5 in")))
sketch4.addConstraint(Sketcher.Constraint("DistanceX", 4, 2, 1, 2, Q("64 in")))
sketch4.addConstraint(Sketcher.Constraint("DistanceX", 5, 2, 8, 2, Q("22 in")))
sketch4.addConstraint(Sketcher.Constraint("DistanceY", 0, 2, 10, 2, Q("22 in")))
sketch4.addConstraint(Sketcher.Constraint("DistanceY", 12, 2, 6, 2, Q("22 in")))
sketch4.addConstraint(Sketcher.Constraint("DistanceX", -1, 1, 0, 2, Q("781.49804 mm")))
sketch4.addConstraint(Sketcher.Constraint("DistanceY", -1, 1, 0, 2, Q("591.97586 mm")))
pad4 = body.newObject("PartDesign::Pad", "Pad003")
pad4.Profile = sketch4
pad4.Length = Q("5.5 in")
pad4.Reversed = True

# Sketch on XZ plane
sketch5 = body.newObject("Sketcher::SketchObject", "Sketch004")
sketch5.AttachmentSupport = (doc.getObject("XZ_Plane"), [""])
sketch5.MapMode = "FlatFace"
sketch5.AttachmentOffset = App.Placement(V(0, 0, 436.72414), App.Rotation())
sketch5.addGeometry(Part.LineSegment(V(-209, -13, 0), V(-209, -83, 0)), False)
sketch5.addGeometry(Part.LineSegment(V(-209, -83, 0), V(223, -83, 0)), False)
sketch5.addGeometry(Part.LineSegment(V(223, -83, 0), V(223, -13, 0)), False)
sketch5.addGeometry(Part.LineSegment(V(223, -13, 0), V(-209, -13, 0)), False)
sketch5.addConstraint(Sketcher.Constraint("Coincident", 0, 2, 1, 1))
sketch5.addConstraint(Sketcher.Constraint("Coincident", 1, 2, 2, 1))
sketch5.addConstraint(Sketcher.Constraint("Coincident", 2, 2, 3, 1))
sketch5.addConstraint(Sketcher.Constraint("Coincident", 3, 2, 0, 1))
sketch5.addConstraint(Sketcher.Constraint("Vertical", 0))
sketch5.addConstraint(Sketcher.Constraint("Horizontal", 1))
sketch5.addConstraint(Sketcher.Constraint("Vertical", 2))
sketch5.addConstraint(Sketcher.Constraint("Horizontal", 3))
sketch5.addConstraint(Sketcher.Constraint("DistanceX", 1, 1, 1, 2, Q("17 in")))
sketch5.addConstraint(Sketcher.Constraint("DistanceY", 0, 2, 0, 1, Q("2.75 in")))
sketch5.addConstraint(Sketcher.Constraint("DistanceY", 2, 2, -1, 1, Q("0.5 in")))
sketch5.addConstraint(Sketcher.Constraint("DistanceX", 0, 2, -1, 1, Q("209.10196 mm")))
pocket1 = body.newObject("PartDesign::Pocket", "Pocket")
pocket1.Profile = sketch5
pocket1.Length = Q("3.1 in")

# Sketch on YZ plane
sketch6 = body.newObject("Sketcher::SketchObject", "Sketch005")
sketch6.AttachmentSupport = (doc.getObject("YZ_Plane"), [""])
sketch6.MapMode = "FlatFace"
sketch6.AttachmentOffset = App.Placement(V(0, 0, -806.00196), App.Rotation())
sketch6.addGeometry(Part.LineSegment(V(592, -13, 0), V(592, -83, 0)), False)
sketch6.addGeometry(Part.LineSegment(V(592, -83, 0), V(160, -83, 0)), False)
sketch6.addGeometry(Part.LineSegment(V(160, -83, 0), V(160, -13, 0)), False)
sketch6.addGeometry(Part.LineSegment(V(160, -13, 0), V(592, -13, 0)), False)
sketch6.addConstraint(Sketcher.Constraint("Coincident", 0, 2, 1, 1))
sketch6.addConstraint(Sketcher.Constraint("Coincident", 1, 2, 2, 1))
sketch6.addConstraint(Sketcher.Constraint("Coincident", 2, 2, 3, 1))
sketch6.addConstraint(Sketcher.Constraint("Coincident", 3, 2, 0, 1))
sketch6.addConstraint(Sketcher.Constraint("Vertical", 0))
sketch6.addConstraint(Sketcher.Constraint("Horizontal", 1))
sketch6.addConstraint(Sketcher.Constraint("Vertical", 2))
sketch6.addConstraint(Sketcher.Constraint("Horizontal", 3))
sketch6.addConstraint(Sketcher.Constraint("DistanceX", 1, 2, 1, 1, Q("17 in")))
sketch6.addConstraint(Sketcher.Constraint("DistanceY", 0, 2, 0, 1, Q("2.75 in")))
sketch6.addConstraint(Sketcher.Constraint("DistanceY", 2, 2, -1, 1, Q("0.5 in")))
sketch6.addConstraint(Sketcher.Constraint("DistanceX", -1, 1, 0, 2, Q("591.97586 mm")))
pocket2 = body.newObject("PartDesign::Pocket", "Pocket001")
pocket2.Profile = sketch6
pocket2.Length = Q("2.6 in")
pocket2.Reversed = True

# Sketch on YZ plane
sketch7 = body.newObject("Sketcher::SketchObject", "Sketch006")
sketch7.AttachmentSupport = (doc.getObject("YZ_Plane"), [""])
sketch7.MapMode = "FlatFace"
sketch7.AttachmentOffset = App.Placement(V(0, 0, 819.59804), App.Rotation())
sketch7.addGeometry(Part.LineSegment(V(160, -13, 0), V(160, -83, 0)), False)
sketch7.addGeometry(Part.LineSegment(V(160, -83, 0), V(592, -83, 0)), False)
sketch7.addGeometry(Part.LineSegment(V(592, -83, 0), V(592, -13, 0)), False)
sketch7.addGeometry(Part.LineSegment(V(592, -13, 0), V(160, -13, 0)), False)
sketch7.addConstraint(Sketcher.Constraint("Coincident", 0, 2, 1, 1))
sketch7.addConstraint(Sketcher.Constraint("Coincident", 1, 2, 2, 1))
sketch7.addConstraint(Sketcher.Constraint("Coincident", 2, 2, 3, 1))
sketch7.addConstraint(Sketcher.Constraint("Coincident", 3, 2, 0, 1))
sketch7.addConstraint(Sketcher.Constraint("Vertical", 0))
sketch7.addConstraint(Sketcher.Constraint("Horizontal", 1))
sketch7.addConstraint(Sketcher.Constraint("Vertical", 2))
sketch7.addConstraint(Sketcher.Constraint("Horizontal", 3))
sketch7.addConstraint(Sketcher.Constraint("DistanceX", 1, 1, 1, 2, Q("17 in")))
sketch7.addConstraint(Sketcher.Constraint("DistanceY", 0, 2, 0, 1, Q("2.75 in")))
sketch7.addConstraint(Sketcher.Constraint("DistanceY", 2, 2, -1, 1, Q("0.5 in")))
sketch7.addConstraint(Sketcher.Constraint("DistanceX", -1, 1, 0, 2, Q("160.17586 mm")))
pocket3 = body.newObject("PartDesign::Pocket", "Pocket002")
pocket3.Profile = sketch7
pocket3.Length = Q("2.1 in")

# Sketch on XZ plane
sketch8 = body.newObject("Sketcher::SketchObject", "Sketch007")
sketch8.AttachmentSupport = (doc.getObject("XZ_Plane"), [""])
sketch8.MapMode = "FlatFace"
sketch8.AttachmentOffset = App.Placement(V(0, 0, -1188.87586), App.Rotation())
sketch8.addGeometry(Part.LineSegment(V(223, -13, 0), V(223, -83, 0)), False)
sketch8.addGeometry(Part.LineSegment(V(223, -83, 0), V(-209, -83, 0)), False)
sketch8.addGeometry(Part.LineSegment(V(-209, -83, 0), V(-209, -13, 0)), False)
sketch8.addGeometry(Part.LineSegment(V(-209, -13, 0), V(223, -13, 0)), False)
sketch8.addConstraint(Sketcher.Constraint("Coincident", 0, 2, 1, 1))
sketch8.addConstraint(Sketcher.Constraint("Coincident", 1, 2, 2, 1))
sketch8.addConstraint(Sketcher.Constraint("Coincident", 2, 2, 3, 1))
sketch8.addConstraint(Sketcher.Constraint("Coincident", 3, 2, 0, 1))
sketch8.addConstraint(Sketcher.Constraint("Vertical", 0))
sketch8.addConstraint(Sketcher.Constraint("Horizontal", 1))
sketch8.addConstraint(Sketcher.Constraint("Vertical", 2))
sketch8.addConstraint(Sketcher.Constraint("Horizontal", 3))
sketch8.addConstraint(Sketcher.Constraint("DistanceX", 1, 2, 1, 1, Q("17 in")))
sketch8.addConstraint(Sketcher.Constraint("DistanceY", 0, 2, 0, 1, Q("2.75 in")))
sketch8.addConstraint(Sketcher.Constraint("DistanceY", 2, 2, -1, 1, Q("0.5 in")))
sketch8.addConstraint(Sketcher.Constraint("DistanceX", -1, 1, 0, 2, Q("222.69804 mm")))
pocket4 = body.newObject("PartDesign::Pocket", "Pocket003")
pocket4.Profile = sketch8
pocket4.Length = Q("3 in")
pocket4.Reversed = True

doc.recompute()
